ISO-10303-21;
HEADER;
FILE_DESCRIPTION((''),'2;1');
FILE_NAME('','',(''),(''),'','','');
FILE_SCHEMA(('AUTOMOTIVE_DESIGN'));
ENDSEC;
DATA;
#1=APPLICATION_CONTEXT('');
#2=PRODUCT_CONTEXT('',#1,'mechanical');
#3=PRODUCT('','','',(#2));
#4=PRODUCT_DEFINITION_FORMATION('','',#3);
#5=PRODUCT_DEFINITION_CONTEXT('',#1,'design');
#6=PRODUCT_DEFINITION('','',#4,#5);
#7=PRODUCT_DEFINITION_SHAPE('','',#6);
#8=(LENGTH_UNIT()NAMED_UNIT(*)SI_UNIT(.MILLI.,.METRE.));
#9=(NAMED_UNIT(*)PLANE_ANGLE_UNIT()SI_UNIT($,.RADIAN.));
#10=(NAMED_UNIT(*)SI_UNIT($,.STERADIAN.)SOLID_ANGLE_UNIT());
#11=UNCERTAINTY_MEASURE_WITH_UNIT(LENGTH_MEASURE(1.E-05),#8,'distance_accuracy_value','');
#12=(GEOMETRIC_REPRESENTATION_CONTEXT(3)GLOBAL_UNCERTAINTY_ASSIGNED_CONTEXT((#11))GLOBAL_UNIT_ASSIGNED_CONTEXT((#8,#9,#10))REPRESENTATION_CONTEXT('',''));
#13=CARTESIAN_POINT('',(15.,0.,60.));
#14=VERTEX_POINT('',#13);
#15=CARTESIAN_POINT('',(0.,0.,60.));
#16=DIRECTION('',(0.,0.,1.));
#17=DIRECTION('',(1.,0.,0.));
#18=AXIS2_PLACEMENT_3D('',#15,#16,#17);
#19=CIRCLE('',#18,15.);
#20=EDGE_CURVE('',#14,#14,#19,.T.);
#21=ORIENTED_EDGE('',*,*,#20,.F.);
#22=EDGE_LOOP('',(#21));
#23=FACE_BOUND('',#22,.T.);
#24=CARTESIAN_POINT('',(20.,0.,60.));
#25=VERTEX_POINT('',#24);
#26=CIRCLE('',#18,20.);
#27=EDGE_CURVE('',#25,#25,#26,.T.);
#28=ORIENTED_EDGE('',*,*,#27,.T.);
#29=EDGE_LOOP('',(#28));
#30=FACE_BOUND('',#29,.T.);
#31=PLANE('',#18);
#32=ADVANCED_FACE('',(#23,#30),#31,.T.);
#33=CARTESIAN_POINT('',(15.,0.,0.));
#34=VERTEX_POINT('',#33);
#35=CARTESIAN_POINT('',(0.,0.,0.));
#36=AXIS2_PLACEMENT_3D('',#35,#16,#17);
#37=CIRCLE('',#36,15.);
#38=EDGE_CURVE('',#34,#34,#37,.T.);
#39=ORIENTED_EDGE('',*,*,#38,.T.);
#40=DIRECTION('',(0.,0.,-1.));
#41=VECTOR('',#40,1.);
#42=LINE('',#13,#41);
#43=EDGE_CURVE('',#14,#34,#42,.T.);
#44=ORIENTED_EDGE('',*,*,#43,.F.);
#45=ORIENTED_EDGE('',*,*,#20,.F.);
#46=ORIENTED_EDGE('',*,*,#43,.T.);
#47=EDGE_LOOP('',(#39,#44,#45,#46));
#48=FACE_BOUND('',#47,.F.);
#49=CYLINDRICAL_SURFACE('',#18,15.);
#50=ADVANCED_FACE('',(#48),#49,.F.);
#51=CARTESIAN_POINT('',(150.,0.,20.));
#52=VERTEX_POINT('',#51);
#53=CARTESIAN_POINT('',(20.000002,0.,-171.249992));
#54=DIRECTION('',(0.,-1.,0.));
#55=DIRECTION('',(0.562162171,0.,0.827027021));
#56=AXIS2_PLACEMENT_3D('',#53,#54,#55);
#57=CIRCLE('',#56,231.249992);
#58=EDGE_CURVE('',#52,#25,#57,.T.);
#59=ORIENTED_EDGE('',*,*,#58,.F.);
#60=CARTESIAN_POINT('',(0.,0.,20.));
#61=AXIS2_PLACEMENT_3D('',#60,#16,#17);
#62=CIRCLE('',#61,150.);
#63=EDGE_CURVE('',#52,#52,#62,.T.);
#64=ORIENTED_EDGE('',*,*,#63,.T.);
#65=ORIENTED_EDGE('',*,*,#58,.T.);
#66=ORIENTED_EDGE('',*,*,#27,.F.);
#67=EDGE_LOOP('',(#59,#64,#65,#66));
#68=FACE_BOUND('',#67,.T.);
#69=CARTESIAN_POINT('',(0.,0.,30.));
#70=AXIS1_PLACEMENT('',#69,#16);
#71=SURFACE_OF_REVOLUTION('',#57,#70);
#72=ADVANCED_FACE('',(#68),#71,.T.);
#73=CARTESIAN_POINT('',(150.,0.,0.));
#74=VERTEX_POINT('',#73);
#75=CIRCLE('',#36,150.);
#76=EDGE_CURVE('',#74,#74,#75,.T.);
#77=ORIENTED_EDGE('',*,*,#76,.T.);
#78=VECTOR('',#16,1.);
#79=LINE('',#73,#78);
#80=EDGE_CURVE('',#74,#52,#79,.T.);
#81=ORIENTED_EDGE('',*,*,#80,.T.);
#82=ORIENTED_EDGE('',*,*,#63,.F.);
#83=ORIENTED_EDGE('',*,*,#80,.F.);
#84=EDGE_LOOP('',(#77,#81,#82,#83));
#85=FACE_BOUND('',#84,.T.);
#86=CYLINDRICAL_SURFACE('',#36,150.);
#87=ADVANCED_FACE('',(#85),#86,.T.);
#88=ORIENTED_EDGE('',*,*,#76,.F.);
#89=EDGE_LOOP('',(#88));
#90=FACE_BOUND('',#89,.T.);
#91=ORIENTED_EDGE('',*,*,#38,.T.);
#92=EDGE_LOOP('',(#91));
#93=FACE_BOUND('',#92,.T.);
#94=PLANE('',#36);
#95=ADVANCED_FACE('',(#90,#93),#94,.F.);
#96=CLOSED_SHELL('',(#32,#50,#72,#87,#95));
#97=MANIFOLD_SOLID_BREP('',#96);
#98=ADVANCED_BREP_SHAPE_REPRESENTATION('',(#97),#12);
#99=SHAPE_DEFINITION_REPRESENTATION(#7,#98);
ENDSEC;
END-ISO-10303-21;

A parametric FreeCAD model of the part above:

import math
import FreeCAD as App
import Part
import Sketcher

V = App.Vector
Q = App.Units.Quantity

doc = App.newDocument("Part")
params = doc.addObject("Spreadsheet::Sheet", "Params")
for row, (alias, value) in enumerate([
    ("sketch1_width", "150 mm"),
    ("sketch1_width2", "20 mm"),
    ("sketch1_height", "60 mm"),
    ("revolution_angle", "360 deg"),
    ("sketch2_diameter", "30 mm"),
    ("pocket1_length", "100 mm"),
], start=1):
    params.set(f"A{row}", alias)
    params.set(f"B{row}", "=" + value)
    params.setAlias(f"B{row}", alias)

body = doc.addObject("PartDesign::Body", "Body")

# Sketch on XZ plane
sketch1 = body.newObject("Sketcher::SketchObject", "Sketch")
sketch1.AttachmentSupport = (doc.getObject("XZ_Plane"), [""])
sketch1.MapMode = "FlatFace"
sketch1.addGeometry([
    Part.LineSegment(V(0, 60, 0), V(0, 0, 0)),  # 0
    Part.LineSegment(V(0, 0, 0), V(150, 0, 0)),  # 1
    Part.LineSegment(V(150, 0, 0), V(150, 20, 0)),  # 2
    Part.ArcOfCircle(Part.Circle(V(20, -171, 0), V(0, 0, 1), 231), math.radians(56), math.radians(90)),  # 3
    Part.LineSegment(V(20, 60, 0), V(0, 60, 0)),  # 4
], False)
sketch1.addConstraint([
    Sketcher.Constraint("Coincident", 0, 2, 1, 1),
    Sketcher.Constraint("Coincident", 1, 2, 2, 1),
    Sketcher.Constraint("Coincident", 2, 2, 3, 1),
    Sketcher.Constraint("Tangent", 3, 2, 4, 1),
    Sketcher.Constraint("Coincident", 4, 2, 0, 1),
    Sketcher.Constraint("Vertical", 0),
    Sketcher.Constraint("Horizontal", 1),
    Sketcher.Constraint("Vertical", 2),
    Sketcher.Constraint("Horizontal", 4),
    Sketcher.Constraint("Coincident", 0, 2, -1, 1),
    Sketcher.Constraint("Equal", 4, 2),
    Sketcher.Constraint("DistanceX", 1, 1, 1, 2, Q("150 mm")),
    Sketcher.Constraint("DistanceX", 4, 2, 4, 1, Q("20 mm")),
    Sketcher.Constraint("DistanceY", 0, 2, 0, 1, Q("60 mm")),
])
sketch1.setExpression("Constraints[11]", "Params.sketch1_width")
sketch1.setExpression("Constraints[12]", "Params.sketch1_width2")
sketch1.setExpression("Constraints[13]", "Params.sketch1_height")
revolution = body.newObject("PartDesign::Revolution", "Revolution")
revolution.Profile = sketch1
revolution.ReferenceAxis = (sketch1, ["V_Axis"])
revolution.setExpression("Angle", "Params.revolution_angle")

# Sketch on XY plane
sketch2 = body.newObject("Sketcher::SketchObject", "Sketch001")
sketch2.AttachmentSupport = (doc.getObject("XY_Plane"), [""])
sketch2.MapMode = "FlatFace"
sketch2.AttachmentOffset = App.Placement(V(0, 0, 60), App.Rotation())
sketch2.addGeometry(Part.Circle(V(0, 0, 0), V(0, 0, 1), 15), False)
sketch2.addConstraint([
    Sketcher.Constraint("Coincident", 0, 3, -1, 1),
    Sketcher.Constraint("Diameter", 0, Q("30 mm")),
])
sketch2.setExpression("Constraints[1]", "Params.sketch2_diameter")
pocket1 = body.newObject("PartDesign::Pocket", "Pocket")
pocket1.Profile = sketch2
pocket1.setExpression("Length", "Params.pocket1_length")

doc.recompute()
